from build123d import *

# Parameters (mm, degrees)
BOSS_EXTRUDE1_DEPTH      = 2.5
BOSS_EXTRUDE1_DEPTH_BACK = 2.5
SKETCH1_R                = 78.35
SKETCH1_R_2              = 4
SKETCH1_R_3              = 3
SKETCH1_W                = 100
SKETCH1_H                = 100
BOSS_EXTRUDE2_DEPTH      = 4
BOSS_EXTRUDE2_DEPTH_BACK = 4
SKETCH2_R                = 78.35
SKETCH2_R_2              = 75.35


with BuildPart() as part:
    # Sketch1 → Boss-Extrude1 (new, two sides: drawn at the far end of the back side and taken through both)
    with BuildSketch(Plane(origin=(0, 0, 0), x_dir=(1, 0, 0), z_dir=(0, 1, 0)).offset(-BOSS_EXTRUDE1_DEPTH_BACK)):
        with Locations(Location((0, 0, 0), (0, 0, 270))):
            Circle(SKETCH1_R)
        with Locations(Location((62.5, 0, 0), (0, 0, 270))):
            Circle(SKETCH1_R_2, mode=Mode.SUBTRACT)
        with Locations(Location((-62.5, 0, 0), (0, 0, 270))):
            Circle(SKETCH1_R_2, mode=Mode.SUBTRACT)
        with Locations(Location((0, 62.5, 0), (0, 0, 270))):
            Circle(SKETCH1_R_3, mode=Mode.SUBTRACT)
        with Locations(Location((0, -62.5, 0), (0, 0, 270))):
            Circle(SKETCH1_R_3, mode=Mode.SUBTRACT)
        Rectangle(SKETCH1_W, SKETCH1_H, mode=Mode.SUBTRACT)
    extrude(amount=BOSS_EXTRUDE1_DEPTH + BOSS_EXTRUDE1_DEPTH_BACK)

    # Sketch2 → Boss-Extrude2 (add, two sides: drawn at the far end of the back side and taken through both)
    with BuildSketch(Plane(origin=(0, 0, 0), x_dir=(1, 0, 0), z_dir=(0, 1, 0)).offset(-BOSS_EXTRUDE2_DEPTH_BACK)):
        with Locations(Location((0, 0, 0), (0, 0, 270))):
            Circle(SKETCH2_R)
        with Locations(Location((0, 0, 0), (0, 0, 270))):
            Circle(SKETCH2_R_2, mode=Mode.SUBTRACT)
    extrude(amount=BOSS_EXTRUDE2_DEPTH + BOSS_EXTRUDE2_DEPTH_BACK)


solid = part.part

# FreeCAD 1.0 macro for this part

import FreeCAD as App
import Part
import Sketcher
from FreeCAD import Vector
Q = App.Units.Quantity

doc = App.newDocument("Part")
params = doc.addObject("Spreadsheet::Sheet", "Params")
for row, (alias, value) in enumerate([
    ("sketch1_diameter", "6 mm"),
    ("sketch1_diameter2", "8 mm"),
    ("sketch1_diameter3", "156.7 mm"),
    ("sketch1_width", "100 mm"),
    ("pad1_length", "2.5 mm"),
    ("pad1_length2", "2.5 mm"),
    ("sketch2_diameter", "156.7 mm"),
    ("sketch2_diameter2", "150.7 mm"),
    ("pad2_length", "4 mm"),
    ("pad2_length2", "4 mm"),
], start=1):
    params.set(f"A{row}", alias)
    params.set(f"B{row}", "=" + value)
    params.setAlias(f"B{row}", alias)

body = doc.addObject("PartDesign::Body", "Body")

# Sketch on XZ plane
sketch1 = body.newObject("Sketcher::SketchObject", "Sketch")
sketch1.AttachmentSupport = (doc.getObject("XZ_Plane"), [""])
sketch1.MapMode = "FlatFace"
sketch1.addGeometry(Part.Circle(Vector(0, 0, 0), Vector(0, 0, 1), 78.35), False)
sketch1.addGeometry(Part.Circle(Vector(0, -62.5, 0), Vector(0, 0, 1), 3), False)
sketch1.addGeometry(Part.Circle(Vector(-62.5, 0, 0), Vector(0, 0, 1), 4), False)
sketch1.addGeometry(Part.Circle(Vector(62.5, 0, 0), Vector(0, 0, 1), 4), False)
sketch1.addGeometry(Part.LineSegment(Vector(50, 50, 0), Vector(-50, 50, 0)), False)
sketch1.addGeometry(Part.LineSegment(Vector(-50, 50, 0), Vector(-50, -50, 0)), False)
sketch1.addGeometry(Part.LineSegment(Vector(-50, -50, 0), Vector(50, -50, 0)), False)
sketch1.addGeometry(Part.LineSegment(Vector(50, -50, 0), Vector(50, 50, 0)), False)
sketch1.addGeometry(Part.Circle(Vector(0, 62.5, 0), Vector(0, 0, 1), 3), False)
sketch1.addConstraint(Sketcher.Constraint("Coincident", 4, 2, 5, 1))
sketch1.addConstraint(Sketcher.Constraint("Coincident", 5, 2, 6, 1))
sketch1.addConstraint(Sketcher.Constraint("Coincident", 6, 2, 7, 1))
sketch1.addConstraint(Sketcher.Constraint("Coincident", 7, 2, 4, 1))
sketch1.addConstraint(Sketcher.Constraint("Horizontal", 4))
sketch1.addConstraint(Sketcher.Constraint("Vertical", 5))
sketch1.addConstraint(Sketcher.Constraint("Horizontal", 6))
sketch1.addConstraint(Sketcher.Constraint("Vertical", 7))
sketch1.addConstraint(Sketcher.Constraint("Coincident", 0, 3, -1, 1))
sketch1.addConstraint(Sketcher.Constraint("Equal", 2, 3))
sketch1.addConstraint(Sketcher.Constraint("Equal", 1, 8))
sketch1.addConstraint(Sketcher.Constraint("Symmetric", 2, 3, 3, 3, -1, 1))
sketch1.addConstraint(Sketcher.Constraint("Symmetric", 1, 3, 8, 3, -1, 1))
sketch1.addConstraint(Sketcher.Constraint("Symmetric", 4, 2, 6, 2, -1, 1))
sketch1.addConstraint(Sketcher.Constraint("PointOnObject", 1, 3, -2))
sketch1.addConstraint(Sketcher.Constraint("PointOnObject", 2, 3, -1))
sketch1.addConstraint(Sketcher.Constraint("Equal", 6, 5))
sketch1.addConstraint(Sketcher.Constraint("Diameter", 1, Q("6 mm")))
sketch1.addConstraint(Sketcher.Constraint("Diameter", 2, Q("8 mm")))
sketch1.addConstraint(Sketcher.Constraint("Diameter", 0, Q("156.7 mm")))
sketch1.addConstraint(Sketcher.Constraint("DistanceX", 4, 2, 4, 1, Q("100 mm")))
sketch1.addConstraint(Sketcher.Constraint("DistanceX", 2, 3, 3, 3, Q("125 mm")))
sketch1.addConstraint(Sketcher.Constraint("DistanceY", 1, 3, 8, 3, Q("125 mm")))
sketch1.setExpression("Constraints[17]", "Params.sketch1_diameter")
sketch1.setExpression("Constraints[18]", "Params.sketch1_diameter2")
sketch1.setExpression("Constraints[19]", "Params.sketch1_diameter3")
sketch1.setExpression("Constraints[20]", "Params.sketch1_width")
pad1 = body.newObject("PartDesign::Pad", "Pad")
pad1.Profile = sketch1
pad1.Type = "TwoLengths"
pad1.setExpression("Length", "Params.pad1_length")
pad1.setExpression("Length2", "Params.pad1_length2")
pad1.Reversed = True

# Sketch on XZ plane
sketch2 = body.newObject("Sketcher::SketchObject", "Sketch001")
sketch2.AttachmentSupport = (doc.getObject("XZ_Plane"), [""])
sketch2.MapMode = "FlatFace"
sketch2.addGeometry(Part.Circle(Vector(0, 0, 0), Vector(0, 0, 1), 78.35), False)
sketch2.addGeometry(Part.Circle(Vector(0, 0, 0), Vector(0, 0, 1), 75.35), False)
sketch2.addConstraint(Sketcher.Constraint("Coincident", 0, 3, -1, 1))
sketch2.addConstraint(Sketcher.Constraint("Coincident", 1, 3, -1, 1))
sketch2.addConstraint(Sketcher.Constraint("Diameter", 0, Q("156.7 mm")))
sketch2.addConstraint(Sketcher.Constraint("Diameter", 1, Q("150.7 mm")))
sketch2.setExpression("Constraints[2]", "Params.sketch2_diameter")
sketch2.setExpression("Constraints[3]", "Params.sketch2_diameter2")
pad2 = body.newObject("PartDesign::Pad", "Pad001")
pad2.Profile = sketch2
pad2.Type = "TwoLengths"
pad2.setExpression("Length", "Params.pad2_length")
pad2.setExpression("Length2", "Params.pad2_length2")
pad2.Reversed = True

doc.recompute()
